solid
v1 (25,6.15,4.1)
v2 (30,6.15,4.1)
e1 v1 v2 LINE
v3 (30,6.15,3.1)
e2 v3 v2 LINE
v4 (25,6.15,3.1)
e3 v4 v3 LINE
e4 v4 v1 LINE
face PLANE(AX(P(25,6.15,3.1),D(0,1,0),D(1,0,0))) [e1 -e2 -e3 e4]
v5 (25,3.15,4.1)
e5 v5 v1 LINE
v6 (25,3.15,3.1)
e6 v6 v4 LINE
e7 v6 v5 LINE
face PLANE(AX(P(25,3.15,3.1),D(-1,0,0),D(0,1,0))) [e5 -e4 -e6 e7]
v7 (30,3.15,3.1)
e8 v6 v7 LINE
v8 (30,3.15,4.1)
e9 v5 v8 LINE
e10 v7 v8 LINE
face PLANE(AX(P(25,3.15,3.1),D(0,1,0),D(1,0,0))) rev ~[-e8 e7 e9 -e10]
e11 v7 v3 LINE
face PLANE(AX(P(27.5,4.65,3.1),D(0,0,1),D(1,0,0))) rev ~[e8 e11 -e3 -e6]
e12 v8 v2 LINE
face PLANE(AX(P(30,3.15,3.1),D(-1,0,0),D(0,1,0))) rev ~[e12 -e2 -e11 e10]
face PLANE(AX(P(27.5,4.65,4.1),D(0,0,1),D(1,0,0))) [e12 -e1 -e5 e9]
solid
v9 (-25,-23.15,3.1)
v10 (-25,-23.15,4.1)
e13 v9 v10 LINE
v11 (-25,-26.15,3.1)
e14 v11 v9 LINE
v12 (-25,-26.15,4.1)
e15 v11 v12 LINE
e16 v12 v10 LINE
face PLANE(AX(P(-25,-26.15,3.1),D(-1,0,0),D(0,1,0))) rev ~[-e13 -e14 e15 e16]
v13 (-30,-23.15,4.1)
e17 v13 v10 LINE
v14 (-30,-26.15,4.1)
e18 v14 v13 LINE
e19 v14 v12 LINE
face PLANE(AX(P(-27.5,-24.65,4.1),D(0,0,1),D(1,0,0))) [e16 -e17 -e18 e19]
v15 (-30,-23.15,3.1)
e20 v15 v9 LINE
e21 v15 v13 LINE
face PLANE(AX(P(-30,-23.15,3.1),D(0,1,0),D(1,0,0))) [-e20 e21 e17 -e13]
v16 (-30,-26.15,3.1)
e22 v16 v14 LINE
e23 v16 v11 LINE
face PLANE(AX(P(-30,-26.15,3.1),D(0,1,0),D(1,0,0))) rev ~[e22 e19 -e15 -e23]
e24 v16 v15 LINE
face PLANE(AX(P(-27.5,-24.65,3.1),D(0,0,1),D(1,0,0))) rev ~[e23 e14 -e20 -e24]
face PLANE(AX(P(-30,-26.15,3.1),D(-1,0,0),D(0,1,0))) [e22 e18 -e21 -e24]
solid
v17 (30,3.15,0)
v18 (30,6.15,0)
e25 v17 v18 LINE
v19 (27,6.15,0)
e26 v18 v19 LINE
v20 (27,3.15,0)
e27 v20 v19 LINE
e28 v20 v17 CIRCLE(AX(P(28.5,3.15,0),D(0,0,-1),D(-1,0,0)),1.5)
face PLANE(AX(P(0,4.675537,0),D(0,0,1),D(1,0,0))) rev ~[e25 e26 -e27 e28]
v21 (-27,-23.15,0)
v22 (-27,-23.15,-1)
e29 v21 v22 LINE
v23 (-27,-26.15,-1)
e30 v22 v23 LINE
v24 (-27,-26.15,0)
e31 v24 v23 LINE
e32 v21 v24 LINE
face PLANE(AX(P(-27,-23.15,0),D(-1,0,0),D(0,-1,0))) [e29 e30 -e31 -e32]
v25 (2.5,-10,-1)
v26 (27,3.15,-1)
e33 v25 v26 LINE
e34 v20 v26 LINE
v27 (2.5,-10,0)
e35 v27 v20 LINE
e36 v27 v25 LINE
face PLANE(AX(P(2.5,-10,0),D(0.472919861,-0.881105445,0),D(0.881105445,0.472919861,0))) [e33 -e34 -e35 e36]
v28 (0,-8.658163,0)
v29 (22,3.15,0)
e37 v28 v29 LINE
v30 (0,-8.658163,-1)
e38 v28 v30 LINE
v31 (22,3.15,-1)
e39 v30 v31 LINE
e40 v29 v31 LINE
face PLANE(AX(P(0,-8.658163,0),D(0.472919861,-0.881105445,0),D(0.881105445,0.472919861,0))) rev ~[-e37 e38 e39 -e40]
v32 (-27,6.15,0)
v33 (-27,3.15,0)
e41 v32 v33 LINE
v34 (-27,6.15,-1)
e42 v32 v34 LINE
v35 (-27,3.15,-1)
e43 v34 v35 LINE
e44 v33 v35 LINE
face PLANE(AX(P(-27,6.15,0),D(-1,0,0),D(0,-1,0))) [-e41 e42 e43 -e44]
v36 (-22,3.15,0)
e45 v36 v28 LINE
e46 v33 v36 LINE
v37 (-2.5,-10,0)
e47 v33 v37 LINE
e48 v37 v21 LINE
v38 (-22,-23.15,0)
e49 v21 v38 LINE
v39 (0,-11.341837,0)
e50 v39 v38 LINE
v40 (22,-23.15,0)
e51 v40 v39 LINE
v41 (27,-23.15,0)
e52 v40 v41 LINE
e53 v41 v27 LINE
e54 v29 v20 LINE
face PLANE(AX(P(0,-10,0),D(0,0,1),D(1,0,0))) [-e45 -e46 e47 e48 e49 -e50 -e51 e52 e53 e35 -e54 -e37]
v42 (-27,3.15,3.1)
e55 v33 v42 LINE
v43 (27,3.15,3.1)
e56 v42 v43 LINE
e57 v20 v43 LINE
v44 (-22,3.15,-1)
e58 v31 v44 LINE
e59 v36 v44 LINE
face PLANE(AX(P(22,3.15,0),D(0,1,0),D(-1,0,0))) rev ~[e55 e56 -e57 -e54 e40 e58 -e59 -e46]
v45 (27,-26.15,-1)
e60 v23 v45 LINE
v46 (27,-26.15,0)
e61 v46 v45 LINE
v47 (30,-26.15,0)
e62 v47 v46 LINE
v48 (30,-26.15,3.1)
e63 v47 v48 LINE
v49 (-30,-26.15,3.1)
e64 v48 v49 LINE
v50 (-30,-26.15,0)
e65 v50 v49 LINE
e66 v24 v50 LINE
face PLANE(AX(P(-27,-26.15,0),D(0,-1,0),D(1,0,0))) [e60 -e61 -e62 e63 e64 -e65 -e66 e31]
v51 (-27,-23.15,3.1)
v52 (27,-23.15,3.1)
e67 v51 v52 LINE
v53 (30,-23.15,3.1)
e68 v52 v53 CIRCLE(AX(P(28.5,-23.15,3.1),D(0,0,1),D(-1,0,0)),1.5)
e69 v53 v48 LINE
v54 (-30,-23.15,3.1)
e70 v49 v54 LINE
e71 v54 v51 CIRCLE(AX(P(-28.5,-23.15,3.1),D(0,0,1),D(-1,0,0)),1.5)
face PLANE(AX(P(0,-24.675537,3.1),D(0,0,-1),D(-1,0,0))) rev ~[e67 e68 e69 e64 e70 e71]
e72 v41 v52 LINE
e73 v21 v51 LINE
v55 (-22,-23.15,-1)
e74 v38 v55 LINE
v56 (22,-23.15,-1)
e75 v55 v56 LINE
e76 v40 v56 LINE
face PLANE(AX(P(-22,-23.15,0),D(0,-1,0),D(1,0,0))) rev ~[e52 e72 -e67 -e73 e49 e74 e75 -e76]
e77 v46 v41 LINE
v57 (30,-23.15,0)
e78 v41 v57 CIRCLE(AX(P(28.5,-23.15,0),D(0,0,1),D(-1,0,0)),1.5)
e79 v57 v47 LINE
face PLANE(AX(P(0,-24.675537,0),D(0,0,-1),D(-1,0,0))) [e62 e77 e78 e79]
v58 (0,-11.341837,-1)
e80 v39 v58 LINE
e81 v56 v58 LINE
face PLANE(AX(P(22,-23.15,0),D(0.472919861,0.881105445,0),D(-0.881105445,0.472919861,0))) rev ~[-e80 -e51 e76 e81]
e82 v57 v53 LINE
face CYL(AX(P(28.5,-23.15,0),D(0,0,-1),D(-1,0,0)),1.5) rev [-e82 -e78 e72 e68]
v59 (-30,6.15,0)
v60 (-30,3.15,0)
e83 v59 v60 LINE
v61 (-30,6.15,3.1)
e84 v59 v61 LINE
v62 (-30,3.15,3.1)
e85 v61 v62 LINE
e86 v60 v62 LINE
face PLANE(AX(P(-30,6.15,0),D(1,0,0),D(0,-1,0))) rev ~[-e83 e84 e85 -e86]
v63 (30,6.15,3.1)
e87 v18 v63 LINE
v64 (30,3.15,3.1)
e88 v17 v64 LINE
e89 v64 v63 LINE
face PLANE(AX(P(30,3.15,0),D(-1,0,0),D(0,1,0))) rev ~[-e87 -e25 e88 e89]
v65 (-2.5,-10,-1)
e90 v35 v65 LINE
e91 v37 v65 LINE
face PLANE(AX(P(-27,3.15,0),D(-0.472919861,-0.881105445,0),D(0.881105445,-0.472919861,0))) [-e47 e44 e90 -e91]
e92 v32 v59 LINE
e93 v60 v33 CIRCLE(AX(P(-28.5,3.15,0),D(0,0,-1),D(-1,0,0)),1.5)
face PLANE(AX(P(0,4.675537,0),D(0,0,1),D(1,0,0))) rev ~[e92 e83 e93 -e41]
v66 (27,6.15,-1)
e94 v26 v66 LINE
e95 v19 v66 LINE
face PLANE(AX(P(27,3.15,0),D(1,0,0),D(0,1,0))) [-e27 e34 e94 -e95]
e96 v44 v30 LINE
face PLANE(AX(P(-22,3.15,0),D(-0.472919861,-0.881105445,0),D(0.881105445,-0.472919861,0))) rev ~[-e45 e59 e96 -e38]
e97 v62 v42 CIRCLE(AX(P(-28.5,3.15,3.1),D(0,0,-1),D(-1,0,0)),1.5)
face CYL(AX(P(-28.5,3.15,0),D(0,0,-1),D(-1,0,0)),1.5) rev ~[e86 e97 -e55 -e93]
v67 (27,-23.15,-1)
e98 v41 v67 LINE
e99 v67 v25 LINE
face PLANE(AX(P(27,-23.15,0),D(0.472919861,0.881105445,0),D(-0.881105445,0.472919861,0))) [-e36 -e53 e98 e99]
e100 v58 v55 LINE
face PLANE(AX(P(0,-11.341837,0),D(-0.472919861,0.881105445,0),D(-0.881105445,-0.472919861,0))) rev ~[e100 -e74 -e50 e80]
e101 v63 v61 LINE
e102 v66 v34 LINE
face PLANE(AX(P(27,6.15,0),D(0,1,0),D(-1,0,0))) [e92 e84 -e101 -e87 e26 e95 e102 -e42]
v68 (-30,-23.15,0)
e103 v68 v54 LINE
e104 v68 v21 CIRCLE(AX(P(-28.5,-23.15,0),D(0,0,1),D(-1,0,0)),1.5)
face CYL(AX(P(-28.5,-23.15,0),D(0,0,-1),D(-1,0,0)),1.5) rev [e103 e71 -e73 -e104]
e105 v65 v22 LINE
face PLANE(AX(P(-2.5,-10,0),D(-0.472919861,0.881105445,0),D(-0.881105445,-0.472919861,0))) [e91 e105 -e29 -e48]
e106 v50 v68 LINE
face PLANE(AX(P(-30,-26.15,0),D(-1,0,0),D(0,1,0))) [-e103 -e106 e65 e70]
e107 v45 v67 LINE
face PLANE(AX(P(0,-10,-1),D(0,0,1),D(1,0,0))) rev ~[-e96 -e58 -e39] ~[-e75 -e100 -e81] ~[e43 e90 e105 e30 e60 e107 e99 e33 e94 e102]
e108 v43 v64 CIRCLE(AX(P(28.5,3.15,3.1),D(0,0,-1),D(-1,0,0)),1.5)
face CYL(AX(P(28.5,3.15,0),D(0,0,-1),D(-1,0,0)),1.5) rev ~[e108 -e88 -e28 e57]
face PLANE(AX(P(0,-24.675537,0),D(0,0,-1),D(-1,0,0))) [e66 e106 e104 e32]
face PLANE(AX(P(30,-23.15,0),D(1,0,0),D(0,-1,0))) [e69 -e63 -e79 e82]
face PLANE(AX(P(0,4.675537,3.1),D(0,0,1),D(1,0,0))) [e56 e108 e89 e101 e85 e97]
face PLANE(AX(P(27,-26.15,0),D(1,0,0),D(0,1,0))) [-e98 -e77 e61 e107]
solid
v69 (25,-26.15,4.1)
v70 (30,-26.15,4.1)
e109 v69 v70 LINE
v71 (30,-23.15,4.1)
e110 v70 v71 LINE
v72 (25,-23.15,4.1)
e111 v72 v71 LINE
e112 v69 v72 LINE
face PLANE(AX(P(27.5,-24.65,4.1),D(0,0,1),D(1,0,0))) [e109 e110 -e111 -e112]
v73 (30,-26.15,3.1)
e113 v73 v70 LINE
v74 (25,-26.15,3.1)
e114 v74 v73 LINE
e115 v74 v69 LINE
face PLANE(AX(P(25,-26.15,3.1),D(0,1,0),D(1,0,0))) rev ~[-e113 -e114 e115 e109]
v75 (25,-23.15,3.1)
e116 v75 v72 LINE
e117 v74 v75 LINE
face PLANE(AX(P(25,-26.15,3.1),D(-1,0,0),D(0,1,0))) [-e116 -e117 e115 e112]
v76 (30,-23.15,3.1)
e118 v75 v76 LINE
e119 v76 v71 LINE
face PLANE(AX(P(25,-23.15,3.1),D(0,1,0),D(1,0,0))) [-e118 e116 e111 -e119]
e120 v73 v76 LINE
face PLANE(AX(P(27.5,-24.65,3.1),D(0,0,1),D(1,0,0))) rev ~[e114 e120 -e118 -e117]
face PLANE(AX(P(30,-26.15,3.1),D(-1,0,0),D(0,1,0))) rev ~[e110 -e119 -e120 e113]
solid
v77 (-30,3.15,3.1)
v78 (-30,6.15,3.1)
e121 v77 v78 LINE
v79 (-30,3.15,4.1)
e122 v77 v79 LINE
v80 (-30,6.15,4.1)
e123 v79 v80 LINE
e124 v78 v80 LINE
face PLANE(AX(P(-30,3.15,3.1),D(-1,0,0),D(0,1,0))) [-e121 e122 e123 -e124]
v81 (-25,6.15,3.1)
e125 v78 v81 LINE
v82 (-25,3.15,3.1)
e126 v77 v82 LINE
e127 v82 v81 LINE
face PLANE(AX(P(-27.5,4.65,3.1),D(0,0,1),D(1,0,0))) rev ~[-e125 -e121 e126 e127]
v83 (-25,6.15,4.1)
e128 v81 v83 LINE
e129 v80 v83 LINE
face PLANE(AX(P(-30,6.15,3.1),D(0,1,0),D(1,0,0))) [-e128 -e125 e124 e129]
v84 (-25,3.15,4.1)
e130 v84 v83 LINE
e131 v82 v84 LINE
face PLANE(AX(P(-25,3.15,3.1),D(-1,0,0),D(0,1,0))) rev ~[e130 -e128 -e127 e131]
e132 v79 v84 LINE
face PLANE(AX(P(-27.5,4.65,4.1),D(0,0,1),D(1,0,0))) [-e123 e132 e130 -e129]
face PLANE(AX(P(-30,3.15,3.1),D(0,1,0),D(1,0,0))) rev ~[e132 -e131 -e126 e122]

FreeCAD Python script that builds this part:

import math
import FreeCAD as App
import Part
import Sketcher
Q = App.Units.Quantity


def add_polygon(sketch, points):
    """Adds a closed chain of lines whose ends are joined by coincident constraints."""
    first, n = sketch.GeometryCount, len(points)
    for a, b in zip(points, points[1:] + points[:1]):
        sketch.addGeometry(Part.LineSegment(App.Vector(*a, 0), App.Vector(*b, 0)), False)
    for i in range(n):
        sketch.addConstraint(Sketcher.Constraint("Coincident", first + i, 2, first + (i + 1) % n, 1))

doc = App.newDocument("Part")
body = doc.addObject("PartDesign::Body", "Body")

# Sketch on XY plane
sketch1 = doc.addObject("Sketcher::SketchObject", "Sketch")
body.addObject(sketch1)
sketch1.AttachmentSupport = (doc.XY_Plane, [""])
sketch1.MapMode = "FlatFace"
sketch1.addGeometry(Part.LineSegment(App.Vector(-27, 3.1, 0), App.Vector(27, 3.1, 0)), False)
sketch1.addGeometry(Part.ArcOfCircle(Part.Circle(App.Vector(28.5, 3.1, 0), App.Vector(0, 0, 1), 1.5), math.radians(0), math.radians(180)), False)
sketch1.addGeometry(Part.LineSegment(App.Vector(30, 3.1, 0), App.Vector(30, 6.2, 0)), False)
sketch1.addGeometry(Part.LineSegment(App.Vector(30, 6.2, 0), App.Vector(-30, 6.2, 0)), False)
sketch1.addGeometry(Part.LineSegment(App.Vector(-30, 6.2, 0), App.Vector(-30, 3.1, 0)), False)
sketch1.addGeometry(Part.ArcOfCircle(Part.Circle(App.Vector(-28.5, 3.1, 0), App.Vector(0, 0, 1), 1.5), math.radians(0), math.radians(180)), False)
sketch1.addConstraint(Sketcher.Constraint("Coincident", 0, 2, 1, 2))
sketch1.addConstraint(Sketcher.Constraint("Tangent", 1, 1, 2, 1))
sketch1.addConstraint(Sketcher.Constraint("Coincident", 2, 2, 3, 1))
sketch1.addConstraint(Sketcher.Constraint("Coincident", 3, 2, 4, 1))
sketch1.addConstraint(Sketcher.Constraint("Tangent", 4, 2, 5, 2))
sketch1.addConstraint(Sketcher.Constraint("Coincident", 5, 1, 0, 1))
sketch1.addConstraint(Sketcher.Constraint("Horizontal", 0))
sketch1.addConstraint(Sketcher.Constraint("Vertical", 2))
sketch1.addConstraint(Sketcher.Constraint("Horizontal", 3))
sketch1.addConstraint(Sketcher.Constraint("Vertical", 4))
sketch1.addConstraint(Sketcher.Constraint("Equal", 1, 5))
sketch1.addConstraint(Sketcher.Constraint("Symmetric", 1, 3, 5, 3, -2))
sketch1.addConstraint(Sketcher.Constraint("Horizontal", 5, 3, 0, 2))
sketch1.addConstraint(Sketcher.Constraint("Radius", 1, Q("1.5 mm")))
sketch1.addConstraint(Sketcher.Constraint("DistanceX", 0, 1, 0, 2, Q("54 mm")))
sketch1.addConstraint(Sketcher.Constraint("DistanceY", 2, 1, 2, 2, Q("3 mm")))
sketch1.addConstraint(Sketcher.Constraint("DistanceY", -1, 1, 1, 3, Q("3.15 mm")))
pad1 = doc.addObject("PartDesign::Pad", "Pad")
body.addObject(pad1)
pad1.Profile = sketch1
pad1.Length = 3.1
body2 = doc.addObject("PartDesign::Body", "Body001")

# Sketch on XY plane
sketch2 = doc.addObject("Sketcher::SketchObject", "Sketch001")
body2.addObject(sketch2)
sketch2.AttachmentSupport = (doc.getObject("XY_Plane001"), [""])
sketch2.MapMode = "FlatFace"
sketch2.addGeometry(Part.LineSegment(App.Vector(27, -23.1, 0), App.Vector(-27, -23.1, 0)), False)
sketch2.addGeometry(Part.ArcOfCircle(Part.Circle(App.Vector(-28.5, -23.1, 0), App.Vector(0, 0, 1), 1.5), math.radians(180), math.radians(360)), False)
sketch2.addGeometry(Part.LineSegment(App.Vector(-30, -23.1, 0), App.Vector(-30, -26.1, 0)), False)
sketch2.addGeometry(Part.LineSegment(App.Vector(-30, -26.1, 0), App.Vector(30, -26.1, 0)), False)
sketch2.addGeometry(Part.LineSegment(App.Vector(30, -26.1, 0), App.Vector(30, -23.1, 0)), False)
sketch2.addGeometry(Part.ArcOfCircle(Part.Circle(App.Vector(28.5, -23.1, 0), App.Vector(0, 0, 1), 1.5), math.radians(180), math.radians(360)), False)
sketch2.addConstraint(Sketcher.Constraint("Coincident", 0, 2, 1, 2))
sketch2.addConstraint(Sketcher.Constraint("Tangent", 1, 1, 2, 1))
sketch2.addConstraint(Sketcher.Constraint("Coincident", 2, 2, 3, 1))
sketch2.addConstraint(Sketcher.Constraint("Coincident", 3, 2, 4, 1))
sketch2.addConstraint(Sketcher.Constraint("Tangent", 4, 2, 5, 2))
sketch2.addConstraint(Sketcher.Constraint("Coincident", 5, 1, 0, 1))
sketch2.addConstraint(Sketcher.Constraint("Horizontal", 0))
sketch2.addConstraint(Sketcher.Constraint("Vertical", 2))
sketch2.addConstraint(Sketcher.Constraint("Horizontal", 3))
sketch2.addConstraint(Sketcher.Constraint("Vertical", 4))
sketch2.addConstraint(Sketcher.Constraint("Equal", 1, 5))
sketch2.addConstraint(Sketcher.Constraint("Symmetric", 1, 3, 5, 3, -2))
sketch2.addConstraint(Sketcher.Constraint("Horizontal", 5, 3, 0, 2))
sketch2.addConstraint(Sketcher.Constraint("Radius", 1, Q("1.5 mm")))
sketch2.addConstraint(Sketcher.Constraint("DistanceX", 0, 2, 0, 1, Q("54 mm")))
sketch2.addConstraint(Sketcher.Constraint("DistanceY", 2, 2, 2, 1, Q("3 mm")))
sketch2.addConstraint(Sketcher.Constraint("DistanceY", 1, 3, -1, 1, Q("23.15 mm")))
pad2 = doc.addObject("PartDesign::Pad", "Pad001")
body2.addObject(pad2)
pad2.Profile = sketch2
pad2.Length = 3.1
body.AllowCompound = True
doc.recompute()

boolean = doc.addObject("PartDesign::Boolean", "Boolean")
body.addObject(boolean)
boolean.Type = "Fuse"
boolean.addObjects([body2])

# Sketch on XY plane
sketch3 = doc.addObject("Sketcher::SketchObject", "Sketch002")
body.addObject(sketch3)
sketch3.AttachmentSupport = (doc.XY_Plane, [""])
sketch3.MapMode = "FlatFace"
add_polygon(sketch3, [(-27, 6.2), (-27, 3.1), (-2.5, -10), (-27, -23.1), (-27, -26.1), (27, -26.1), (27, -23.1), (2.5, -10), (27, 3.1), (27, 6.2)])  # lines 0-9
sketch3.addConstraint(Sketcher.Constraint("Vertical", 0))
sketch3.addConstraint(Sketcher.Constraint("Vertical", 3))
sketch3.addConstraint(Sketcher.Constraint("Horizontal", 4))
sketch3.addConstraint(Sketcher.Constraint("Vertical", 5))
sketch3.addConstraint(Sketcher.Constraint("Vertical", 8))
sketch3.addConstraint(Sketcher.Constraint("Horizontal", 9))
sketch3.addConstraint(Sketcher.Constraint("Symmetric", 2, 2, 5, 2, -2))
sketch3.addConstraint(Sketcher.Constraint("Symmetric", 1, 2, 6, 2, -2))
sketch3.addConstraint(Sketcher.Constraint("Symmetric", 0, 2, 7, 2, -2))
sketch3.addConstraint(Sketcher.Constraint("Parallel", 1, 6))
sketch3.addConstraint(Sketcher.Constraint("Vertical", 0, 2, 2, 2))
sketch3.addConstraint(Sketcher.Constraint("Equal", 0, 3))
sketch3.addConstraint(Sketcher.Constraint("DistanceX", 4, 1, 4, 2, Q("54 mm")))
sketch3.addConstraint(Sketcher.Constraint("DistanceY", 0, 2, 0, 1, Q("3 mm")))
sketch3.addConstraint(Sketcher.Constraint("DistanceY", 1, 2, -1, 1, Q("10 mm")))
sketch3.addConstraint(Sketcher.Constraint("DistanceX", 1, 2, 6, 2, Q("5 mm")))
sketch3.addConstraint(Sketcher.Constraint("DistanceY", 2, 2, 0, 2, Q("26.3 mm")))
pad3 = doc.addObject("PartDesign::Pad", "Pad002")
body.addObject(pad3)
pad3.Profile = sketch3
pad3.Length = 1
pad3.Reversed = True

# Sketch on XY plane
sketch4 = doc.addObject("Sketcher::SketchObject", "Sketch003")
body.addObject(sketch4)
sketch4.AttachmentSupport = (doc.XY_Plane, [""])
sketch4.MapMode = "FlatFace"
add_polygon(sketch4, [(22, 3), (-22, 3), (0, -9)])  # lines 0-2
add_polygon(sketch4, [(0, -11), (-22, -23), (22, -23)])  # lines 3-5
sketch4.addConstraint(Sketcher.Constraint("Horizontal", 0))
sketch4.addConstraint(Sketcher.Constraint("Horizontal", 4))
sketch4.addConstraint(Sketcher.Constraint("PointOnObject", 1, 2, -2))
sketch4.addConstraint(Sketcher.Constraint("PointOnObject", 5, 2, -2))
sketch4.addConstraint(Sketcher.Constraint("Parallel", 2, 3))
sketch4.addConstraint(Sketcher.Constraint("Parallel", 1, 5))
sketch4.addConstraint(Sketcher.Constraint("Vertical", 0, 2, 3, 2))
sketch4.addConstraint(Sketcher.Constraint("Vertical", 2, 2, 4, 2))
sketch4.addConstraint(Sketcher.Constraint("DistanceX", 0, 2, 0, 1, Q("44 mm")))
sketch4.addConstraint(Sketcher.Constraint("DistanceY", 3, 2, 0, 2, Q("26.3 mm")))
sketch4.addConstraint(Sketcher.Constraint("DistanceY", -1, 1, 0, 2, Q("3.15 mm")))
sketch4.addConstraint(Sketcher.Constraint("Distance", 1, Q("24.968635 mm")))
pocket1 = doc.addObject("PartDesign::Pocket", "Pocket")
body.addObject(pocket1)
pocket1.Profile = sketch4
pocket1.Type = "ThroughAll"
body3 = doc.addObject("PartDesign::Body", "Body002")

# Sketch on XY plane
sketch5 = doc.addObject("Sketcher::SketchObject", "Sketch004")
body3.addObject(sketch5)
sketch5.AttachmentSupport = (doc.getObject("XY_Plane002"), [""])
sketch5.MapMode = "FlatFace"
sketch5.AttachmentOffset = App.Placement(App.Vector(0, 0, 3.1), App.Rotation())
add_polygon(sketch5, [(25, 6.2), (25, 3.1), (30, 3.1), (30, 6.2)])  # lines 0-3
sketch5.addConstraint(Sketcher.Constraint("Vertical", 0))
sketch5.addConstraint(Sketcher.Constraint("Horizontal", 1))
sketch5.addConstraint(Sketcher.Constraint("Vertical", 2))
sketch5.addConstraint(Sketcher.Constraint("Horizontal", 3))
sketch5.addConstraint(Sketcher.Constraint("DistanceX", 1, 1, 1, 2, Q("5 mm")))
sketch5.addConstraint(Sketcher.Constraint("DistanceY", 0, 2, 0, 1, Q("3 mm")))
sketch5.addConstraint(Sketcher.Constraint("DistanceX", -1, 1, 0, 2, Q("25 mm")))
sketch5.addConstraint(Sketcher.Constraint("DistanceY", -1, 1, 0, 2, Q("3.15 mm")))
pad4 = doc.addObject("PartDesign::Pad", "Pad003")
body3.addObject(pad4)
pad4.Profile = sketch5
pad4.Length = 1
body4 = doc.addObject("PartDesign::Body", "Body003")

# Sketch on XY plane
sketch6 = doc.addObject("Sketcher::SketchObject", "Sketch005")
body4.addObject(sketch6)
sketch6.AttachmentSupport = (doc.getObject("XY_Plane003"), [""])
sketch6.MapMode = "FlatFace"
sketch6.AttachmentOffset = App.Placement(App.Vector(0, 0, 3.1), App.Rotation())
add_polygon(sketch6, [(-30, 6.2), (-30, 3.1), (-25, 3.1), (-25, 6.2)])  # lines 0-3
sketch6.addConstraint(Sketcher.Constraint("Vertical", 0))
sketch6.addConstraint(Sketcher.Constraint("Horizontal", 1))
sketch6.addConstraint(Sketcher.Constraint("Vertical", 2))
sketch6.addConstraint(Sketcher.Constraint("Horizontal", 3))
sketch6.addConstraint(Sketcher.Constraint("DistanceX", 1, 1, 1, 2, Q("5 mm")))
sketch6.addConstraint(Sketcher.Constraint("DistanceY", 0, 2, 0, 1, Q("3 mm")))
sketch6.addConstraint(Sketcher.Constraint("DistanceX", 0, 2, -1, 1, Q("30 mm")))
sketch6.addConstraint(Sketcher.Constraint("DistanceY", -1, 1, 0, 2, Q("3.15 mm")))
pad5 = doc.addObject("PartDesign::Pad", "Pad004")
body4.addObject(pad5)
pad5.Profile = sketch6
pad5.Length = 1
body5 = doc.addObject("PartDesign::Body", "Body004")

# Sketch on XY plane
sketch7 = doc.addObject("Sketcher::SketchObject", "Sketch006")
body5.addObject(sketch7)
sketch7.AttachmentSupport = (doc.getObject("XY_Plane004"), [""])
sketch7.MapMode = "FlatFace"
sketch7.AttachmentOffset = App.Placement(App.Vector(0, 0, 3.1), App.Rotation())
add_polygon(sketch7, [(25, -23.1), (25, -26.1), (30, -26.1), (30, -23.1)])  # lines 0-3
sketch7.addConstraint(Sketcher.Constraint("Vertical", 0))
sketch7.addConstraint(Sketcher.Constraint("Horizontal", 1))
sketch7.addConstraint(Sketcher.Constraint("Vertical", 2))
sketch7.addConstraint(Sketcher.Constraint("Horizontal", 3))
sketch7.addConstraint(Sketcher.Constraint("DistanceX", 1, 1, 1, 2, Q("5 mm")))
sketch7.addConstraint(Sketcher.Constraint("DistanceY", 0, 2, 0, 1, Q("3 mm")))
sketch7.addConstraint(Sketcher.Constraint("DistanceX", -1, 1, 0, 2, Q("25 mm")))
sketch7.addConstraint(Sketcher.Constraint("DistanceY", 0, 2, -1, 1, Q("26.15 mm")))
pad6 = doc.addObject("PartDesign::Pad", "Pad005")
body5.addObject(pad6)
pad6.Profile = sketch7
pad6.Length = 1
body6 = doc.addObject("PartDesign::Body", "Body005")

# Sketch on XY plane
sketch8 = doc.addObject("Sketcher::SketchObject", "Sketch007")
body6.addObject(sketch8)
sketch8.AttachmentSupport = (doc.getObject("XY_Plane005"), [""])
sketch8.MapMode = "FlatFace"
sketch8.AttachmentOffset = App.Placement(App.Vector(0, 0, 3.1), App.Rotation())
add_polygon(sketch8, [(-30, -23.1), (-30, -26.1), (-25, -26.1), (-25, -23.1)])  # lines 0-3
sketch8.addConstraint(Sketcher.Constraint("Vertical", 0))
sketch8.addConstraint(Sketcher.Constraint("Horizontal", 1))
sketch8.addConstraint(Sketcher.Constraint("Vertical", 2))
sketch8.addConstraint(Sketcher.Constraint("Horizontal", 3))
sketch8.addConstraint(Sketcher.Constraint("DistanceX", 1, 1, 1, 2, Q("5 mm")))
sketch8.addConstraint(Sketcher.Constraint("DistanceY", 0, 2, 0, 1, Q("3 mm")))
sketch8.addConstraint(Sketcher.Constraint("DistanceX", 0, 2, -1, 1, Q("30 mm")))
sketch8.addConstraint(Sketcher.Constraint("DistanceY", 0, 2, -1, 1, Q("26.15 mm")))
pad7 = doc.addObject("PartDesign::Pad", "Pad006")
body6.addObject(pad7)
pad7.Profile = sketch8
pad7.Length = 1

doc.recompute()
